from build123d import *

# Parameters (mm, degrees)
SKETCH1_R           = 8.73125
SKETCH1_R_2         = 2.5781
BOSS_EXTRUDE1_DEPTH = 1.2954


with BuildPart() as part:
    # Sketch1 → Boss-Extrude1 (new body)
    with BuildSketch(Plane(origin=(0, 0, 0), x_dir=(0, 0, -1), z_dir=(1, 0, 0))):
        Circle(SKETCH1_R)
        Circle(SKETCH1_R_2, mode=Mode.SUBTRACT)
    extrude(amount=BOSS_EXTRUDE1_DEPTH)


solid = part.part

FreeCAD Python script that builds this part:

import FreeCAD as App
import Part
import Sketcher
from FreeCAD import Vector
Q = App.Units.Quantity

doc = App.newDocument("Part")
body = doc.addObject("PartDesign::Body", "Body")

sketch1 = doc.addObject("Sketcher::SketchObject", "Sketch")
body.addObject(sketch1)
sketch1.AttachmentSupport = (doc.YZ_Plane, [""])
sketch1.MapMode = "FlatFace"
sketch1.addGeometry([
    Part.Circle(Vector(0, 0, 0), Vector(0, 0, 1), 8.7),
    Part.Circle(Vector(0, 0, 0), Vector(0, 0, 1), 2.6),
], False)
sketch1.addConstraint([
    Sketcher.Constraint("Coincident", 0, 3, -1, 1),
    Sketcher.Constraint("Coincident", 1, 3, -1, 1),
    Sketcher.Constraint("Diameter", 0, Q("0.6875 in")),
    Sketcher.Constraint("Diameter", 1, Q("0.203 in")),
])
pad1 = doc.addObject("PartDesign::Pad", "Pad")
body.addObject(pad1)
pad1.Profile = sketch1
pad1.Length = Q("0.051 in")

doc.recompute()
